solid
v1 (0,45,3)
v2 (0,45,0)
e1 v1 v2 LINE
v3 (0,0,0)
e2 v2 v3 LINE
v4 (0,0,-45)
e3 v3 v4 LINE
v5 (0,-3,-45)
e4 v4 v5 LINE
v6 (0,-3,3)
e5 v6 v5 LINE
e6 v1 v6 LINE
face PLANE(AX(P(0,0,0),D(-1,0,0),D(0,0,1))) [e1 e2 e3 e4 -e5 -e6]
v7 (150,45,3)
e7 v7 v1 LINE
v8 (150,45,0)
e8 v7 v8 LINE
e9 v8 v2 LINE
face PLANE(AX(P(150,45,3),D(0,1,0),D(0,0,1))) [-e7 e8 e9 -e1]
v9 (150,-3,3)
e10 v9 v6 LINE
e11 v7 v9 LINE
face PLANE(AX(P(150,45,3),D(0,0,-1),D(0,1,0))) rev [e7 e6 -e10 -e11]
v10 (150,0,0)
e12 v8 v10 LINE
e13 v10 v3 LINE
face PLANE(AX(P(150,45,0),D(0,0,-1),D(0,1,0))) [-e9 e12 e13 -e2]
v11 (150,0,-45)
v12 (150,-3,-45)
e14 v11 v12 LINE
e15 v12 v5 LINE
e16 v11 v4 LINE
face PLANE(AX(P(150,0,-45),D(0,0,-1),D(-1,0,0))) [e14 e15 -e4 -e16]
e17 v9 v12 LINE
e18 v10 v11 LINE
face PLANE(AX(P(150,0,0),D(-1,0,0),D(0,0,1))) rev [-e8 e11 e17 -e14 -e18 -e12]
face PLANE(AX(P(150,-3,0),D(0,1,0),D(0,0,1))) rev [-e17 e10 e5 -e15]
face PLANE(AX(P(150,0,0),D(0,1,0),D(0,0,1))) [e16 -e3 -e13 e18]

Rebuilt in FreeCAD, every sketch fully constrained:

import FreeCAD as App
import Part
import Sketcher
from FreeCAD import Vector
Q = App.Units.Quantity


def add_polygon(sketch, points):
    """Adds a closed chain of lines whose ends are joined by coincident constraints."""
    first, n = sketch.GeometryCount, len(points)
    for a, b in zip(points, points[1:] + points[:1]):
        sketch.addGeometry(Part.LineSegment(App.Vector(*a, 0), App.Vector(*b, 0)), False)
    for i in range(n):
        sketch.addConstraint(Sketcher.Constraint("Coincident", first + i, 2, first + (i + 1) % n, 1))

doc = App.newDocument("Part")
body = doc.addObject("PartDesign::Body", "Body")

# Sketch on YZ plane
sketch1 = body.newObject("Sketcher::SketchObject", "Sketch")
sketch1.AttachmentSupport = (doc.getObject("YZ_Plane"), [""])
sketch1.MapMode = "FlatFace"
add_polygon(sketch1, [(0, 0), (45, 0), (45, 3), (-3, 3), (-3, -45), (0, -45)])  # lines 0-5
sketch1.addConstraint([
    Sketcher.Constraint("Horizontal", 0),
    Sketcher.Constraint("Vertical", 1),
    Sketcher.Constraint("Horizontal", 2),
    Sketcher.Constraint("Vertical", 3),
    Sketcher.Constraint("Horizontal", 4),
    Sketcher.Constraint("Vertical", 5),
    Sketcher.Constraint("Coincident", 5, 2, -1, 1),
    Sketcher.Constraint("Equal", 4, 1),
    Sketcher.Constraint("Equal", 2, 3),
    Sketcher.Constraint("DistanceX", 0, 1, 0, 2, Q("45 mm")),
    Sketcher.Constraint("DistanceX", 2, 2, 2, 1, Q("48 mm")),
])
pad1 = body.newObject("PartDesign::Pad", "Pad")
pad1.Profile = sketch1
pad1.Length = 150

doc.recompute()
